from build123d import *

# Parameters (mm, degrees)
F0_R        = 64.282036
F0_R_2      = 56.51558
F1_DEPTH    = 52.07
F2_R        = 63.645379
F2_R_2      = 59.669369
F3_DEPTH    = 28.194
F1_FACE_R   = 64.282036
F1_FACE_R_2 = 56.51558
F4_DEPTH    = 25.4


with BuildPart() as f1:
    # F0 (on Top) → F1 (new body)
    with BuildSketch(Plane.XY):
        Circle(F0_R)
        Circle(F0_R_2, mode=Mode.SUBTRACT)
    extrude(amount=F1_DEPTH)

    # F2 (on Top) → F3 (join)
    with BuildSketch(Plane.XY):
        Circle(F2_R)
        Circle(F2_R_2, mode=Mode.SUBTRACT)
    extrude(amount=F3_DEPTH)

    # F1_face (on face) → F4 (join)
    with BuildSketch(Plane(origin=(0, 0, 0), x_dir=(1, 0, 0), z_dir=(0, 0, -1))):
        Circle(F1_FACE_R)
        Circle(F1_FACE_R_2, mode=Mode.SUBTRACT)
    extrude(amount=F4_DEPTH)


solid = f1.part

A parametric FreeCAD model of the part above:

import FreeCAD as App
import Part
import Sketcher
Q = App.Units.Quantity

doc = App.newDocument("Part")
params = doc.addObject("Spreadsheet::Sheet", "Params")
for row, (alias, value) in enumerate([
    ("pad1_length", "2.05 in"),
    ("pad2_length", "1.11 in"),
    ("pad3_length", "1 in"),
], start=1):
    params.set(f"A{row}", alias)
    params.set(f"B{row}", "=" + value)
    params.setAlias(f"B{row}", alias)

body = doc.addObject("PartDesign::Body", "Body")

# Sketch on XY plane
sketch1 = body.newObject("Sketcher::SketchObject", "Sketch")
sketch1.AttachmentSupport = (doc.getObject("XY_Plane"), [""])
sketch1.MapMode = "FlatFace"
sketch1.addGeometry([
    Part.Circle(App.Vector(0, 0, 0), App.Vector(0, 0, 1), 64.282036),
    Part.Circle(App.Vector(0, 0, 0), App.Vector(0, 0, 1), 56.51558),
], False)
sketch1.addConstraint([
    Sketcher.Constraint("Coincident", 0, 3, -1, 1),
    Sketcher.Constraint("Coincident", 1, 3, -1, 1),
    Sketcher.Constraint("Diameter", 1, Q("113.03116 mm")),
    Sketcher.Constraint("Diameter", 0, Q("128.564072 mm")),
])
pad1 = body.newObject("PartDesign::Pad", "Pad")
pad1.Profile = sketch1
pad1.setExpression("Length", "Params.pad1_length")

# Sketch on XY plane
sketch2 = body.newObject("Sketcher::SketchObject", "Sketch001")
sketch2.AttachmentSupport = (doc.getObject("XY_Plane"), [""])
sketch2.MapMode = "FlatFace"
sketch2.addGeometry([
    Part.Circle(App.Vector(0, 0, 0), App.Vector(0, 0, 1), 63.645379),
    Part.Circle(App.Vector(0, 0, 0), App.Vector(0, 0, 1), 59.669369),
], False)
sketch2.addConstraint([
    Sketcher.Constraint("Coincident", 0, 3, -1, 1),
    Sketcher.Constraint("Coincident", 1, 3, -1, 1),
    Sketcher.Constraint("Diameter", 1, Q("119.338738 mm")),
    Sketcher.Constraint("Diameter", 0, Q("127.290758 mm")),
])
pad2 = body.newObject("PartDesign::Pad", "Pad001")
pad2.Profile = sketch2
pad2.setExpression("Length", "Params.pad2_length")

# Sketch on XY plane
sketch3 = body.newObject("Sketcher::SketchObject", "Sketch002")
sketch3.AttachmentSupport = (doc.getObject("XY_Plane"), [""])
sketch3.MapMode = "FlatFace"
sketch3.addGeometry([
    Part.Circle(App.Vector(0, 0, 0), App.Vector(0, 0, 1), 64.282036),
    Part.Circle(App.Vector(0, 0, 0), App.Vector(0, 0, 1), 56.51558),
], False)
sketch3.addConstraint([
    Sketcher.Constraint("Coincident", 0, 3, -1, 1),
    Sketcher.Constraint("Coincident", 1, 3, -1, 1),
    Sketcher.Constraint("Diameter", 1, Q("113.03116 mm")),
    Sketcher.Constraint("Diameter", 0, Q("128.564072 mm")),
])
pad3 = body.newObject("PartDesign::Pad", "Pad002")
pad3.Profile = sketch3
pad3.setExpression("Length", "Params.pad3_length")
pad3.Reversed = True

doc.recompute()
